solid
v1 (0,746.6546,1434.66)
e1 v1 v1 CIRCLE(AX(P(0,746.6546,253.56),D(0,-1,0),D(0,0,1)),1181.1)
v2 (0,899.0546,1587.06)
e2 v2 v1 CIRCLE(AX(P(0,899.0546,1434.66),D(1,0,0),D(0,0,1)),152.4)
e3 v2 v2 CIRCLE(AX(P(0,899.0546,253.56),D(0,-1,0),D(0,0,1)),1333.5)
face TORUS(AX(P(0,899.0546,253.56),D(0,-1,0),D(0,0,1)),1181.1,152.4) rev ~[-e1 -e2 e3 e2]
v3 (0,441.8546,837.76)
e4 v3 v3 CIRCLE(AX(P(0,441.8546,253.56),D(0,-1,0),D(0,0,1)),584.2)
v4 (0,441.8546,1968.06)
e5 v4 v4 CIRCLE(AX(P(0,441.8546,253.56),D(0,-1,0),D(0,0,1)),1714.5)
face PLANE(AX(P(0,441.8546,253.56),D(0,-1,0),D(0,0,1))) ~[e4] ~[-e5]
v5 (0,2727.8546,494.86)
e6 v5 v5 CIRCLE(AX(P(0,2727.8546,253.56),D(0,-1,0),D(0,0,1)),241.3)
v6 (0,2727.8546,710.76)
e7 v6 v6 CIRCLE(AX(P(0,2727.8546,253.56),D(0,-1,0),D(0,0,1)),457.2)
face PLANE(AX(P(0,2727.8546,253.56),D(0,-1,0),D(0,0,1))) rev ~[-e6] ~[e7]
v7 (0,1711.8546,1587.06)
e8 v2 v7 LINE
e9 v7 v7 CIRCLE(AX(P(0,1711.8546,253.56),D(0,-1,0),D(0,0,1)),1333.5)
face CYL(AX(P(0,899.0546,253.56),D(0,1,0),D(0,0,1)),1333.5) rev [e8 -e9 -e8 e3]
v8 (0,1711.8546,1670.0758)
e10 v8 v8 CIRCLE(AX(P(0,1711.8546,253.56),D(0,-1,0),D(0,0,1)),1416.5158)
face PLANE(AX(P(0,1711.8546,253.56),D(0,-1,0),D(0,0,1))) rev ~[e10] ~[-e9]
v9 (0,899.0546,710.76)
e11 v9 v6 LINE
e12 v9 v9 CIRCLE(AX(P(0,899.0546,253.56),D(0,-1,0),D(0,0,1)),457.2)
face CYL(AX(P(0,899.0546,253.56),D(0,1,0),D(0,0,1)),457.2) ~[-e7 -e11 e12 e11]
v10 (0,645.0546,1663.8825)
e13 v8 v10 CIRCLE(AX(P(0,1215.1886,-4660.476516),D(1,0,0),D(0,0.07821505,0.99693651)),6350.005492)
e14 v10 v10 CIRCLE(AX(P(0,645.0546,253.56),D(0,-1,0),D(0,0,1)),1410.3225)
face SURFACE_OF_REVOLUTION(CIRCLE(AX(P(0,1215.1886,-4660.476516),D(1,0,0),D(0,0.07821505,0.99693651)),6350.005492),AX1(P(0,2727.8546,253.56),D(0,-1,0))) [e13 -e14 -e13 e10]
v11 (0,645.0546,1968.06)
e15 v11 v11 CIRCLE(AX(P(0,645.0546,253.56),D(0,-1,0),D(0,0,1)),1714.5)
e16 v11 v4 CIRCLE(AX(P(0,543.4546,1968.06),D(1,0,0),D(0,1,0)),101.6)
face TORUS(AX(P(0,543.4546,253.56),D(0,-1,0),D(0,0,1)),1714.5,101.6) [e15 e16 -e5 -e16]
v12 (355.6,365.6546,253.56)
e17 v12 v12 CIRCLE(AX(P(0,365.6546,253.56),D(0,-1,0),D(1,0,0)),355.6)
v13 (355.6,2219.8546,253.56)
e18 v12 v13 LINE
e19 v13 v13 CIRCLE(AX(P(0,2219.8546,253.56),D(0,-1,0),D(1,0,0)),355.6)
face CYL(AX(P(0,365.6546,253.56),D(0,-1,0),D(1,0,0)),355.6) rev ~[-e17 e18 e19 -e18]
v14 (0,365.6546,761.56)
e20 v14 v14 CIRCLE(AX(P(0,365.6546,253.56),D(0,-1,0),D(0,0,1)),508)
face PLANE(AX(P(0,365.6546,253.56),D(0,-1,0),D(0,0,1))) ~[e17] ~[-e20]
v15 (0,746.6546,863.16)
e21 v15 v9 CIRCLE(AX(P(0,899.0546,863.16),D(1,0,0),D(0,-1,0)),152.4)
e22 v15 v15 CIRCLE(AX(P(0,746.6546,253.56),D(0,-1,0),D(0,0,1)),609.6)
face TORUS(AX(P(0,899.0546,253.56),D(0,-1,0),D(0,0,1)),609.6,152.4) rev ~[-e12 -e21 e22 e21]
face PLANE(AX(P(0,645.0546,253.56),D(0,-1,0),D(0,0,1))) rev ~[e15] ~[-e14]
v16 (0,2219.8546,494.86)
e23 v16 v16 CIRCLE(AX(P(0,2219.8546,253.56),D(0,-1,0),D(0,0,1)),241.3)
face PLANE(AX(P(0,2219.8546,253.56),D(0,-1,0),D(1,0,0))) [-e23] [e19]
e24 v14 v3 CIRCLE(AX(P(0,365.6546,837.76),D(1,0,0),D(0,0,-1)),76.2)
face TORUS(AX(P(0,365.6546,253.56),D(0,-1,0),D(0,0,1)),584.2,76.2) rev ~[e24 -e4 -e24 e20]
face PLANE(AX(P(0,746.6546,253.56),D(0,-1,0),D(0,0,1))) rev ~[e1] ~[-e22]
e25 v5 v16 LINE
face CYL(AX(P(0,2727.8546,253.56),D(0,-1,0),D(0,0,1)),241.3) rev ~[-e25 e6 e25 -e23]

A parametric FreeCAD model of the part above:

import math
import FreeCAD as App
import Part
import Sketcher
from FreeCAD import Vector
Q = App.Units.Quantity

doc = App.newDocument("Part")
body = doc.addObject("PartDesign::Body", "Body")

sketch1 = body.newObject("Sketcher::SketchObject", "Sketch")
sketch1.AttachmentSupport = (doc.getObject("YZ_Plane"), [""])
sketch1.MapMode = "FlatFace"
sketch1.addGeometry(Part.LineSegment(Vector(365.6546, 761.56, 0), Vector(365.6546, 253.56, 0)), False)
sketch1.addGeometry(Part.LineSegment(Vector(365.6546, 253.56, 0), Vector(2219.8546, 253.56, 0)), False)
sketch1.addGeometry(Part.LineSegment(Vector(2219.8546, 253.56, 0), Vector(2219.8546, 494.86, 0)), False)
sketch1.addGeometry(Part.LineSegment(Vector(2219.8546, 494.86, 0), Vector(2727.8546, 494.86, 0)), False)
sketch1.addGeometry(Part.LineSegment(Vector(2727.8546, 494.86, 0), Vector(2727.8546, 710.76, 0)), False)
sketch1.addGeometry(Part.LineSegment(Vector(2727.8546, 710.76, 0), Vector(899.0546, 710.76, 0)), False)
sketch1.addGeometry(Part.ArcOfCircle(Part.Circle(Vector(899.0546, 863.16, 0), Vector(0, 0, 1), 152.4), math.radians(180), math.radians(270)), False)
sketch1.addGeometry(Part.LineSegment(Vector(746.6546, 863.16, 0), Vector(746.6546, 1434.66, 0)), False)
sketch1.addGeometry(Part.ArcOfCircle(Part.Circle(Vector(899.0546, 1434.66, 0), Vector(0, 0, 1), 152.4), math.radians(90), math.radians(180)), False)
sketch1.addGeometry(Part.LineSegment(Vector(899.0546, 1587.06, 0), Vector(1711.8546, 1587.06, 0)), False)
sketch1.addGeometry(Part.LineSegment(Vector(1711.8546, 1587.06, 0), Vector(1711.8546, 1670.0758, 0)), False)
sketch1.addGeometry(Part.ArcOfCircle(Part.Circle(Vector(1215.1886, -4660.476516, 0), Vector(0, 0, 1), 6350.005492), math.radians(85.514026), math.radians(95.151227)), False)
sketch1.addGeometry(Part.LineSegment(Vector(645.0546, 1663.8825, 0), Vector(645.0546, 1968.06, 0)), False)
sketch1.addGeometry(Part.ArcOfCircle(Part.Circle(Vector(543.4546, 1968.06, 0), Vector(0, 0, 1), 101.6), math.radians(0), math.radians(180)), False)
sketch1.addGeometry(Part.LineSegment(Vector(441.8546, 1968.06, 0), Vector(441.8546, 837.76, 0)), False)
sketch1.addGeometry(Part.ArcOfCircle(Part.Circle(Vector(365.6546, 837.76, 0), Vector(0, 0, 1), 76.2), math.radians(-90), math.radians(0)), False)
sketch1.addGeometry(Part.LineSegment(Vector(2727.8546, 253.56, 0), Vector(365.6546, 253.56, 0)), True)
sketch1.addConstraint(Sketcher.Constraint("Coincident", 0, 2, 1, 1))
sketch1.addConstraint(Sketcher.Constraint("Coincident", 1, 2, 2, 1))
sketch1.addConstraint(Sketcher.Constraint("Coincident", 2, 2, 3, 1))
sketch1.addConstraint(Sketcher.Constraint("Coincident", 3, 2, 4, 1))
sketch1.addConstraint(Sketcher.Constraint("Coincident", 4, 2, 5, 1))
sketch1.addConstraint(Sketcher.Constraint("Coincident", 5, 2, 6, 2))
sketch1.addConstraint(Sketcher.Constraint("Coincident", 6, 1, 7, 1))
sketch1.addConstraint(Sketcher.Constraint("Coincident", 7, 2, 8, 2))
sketch1.addConstraint(Sketcher.Constraint("Coincident", 8, 1, 9, 1))
sketch1.addConstraint(Sketcher.Constraint("Coincident", 9, 2, 10, 1))
sketch1.addConstraint(Sketcher.Constraint("Coincident", 10, 2, 11, 1))
sketch1.addConstraint(Sketcher.Constraint("Coincident", 11, 2, 12, 1))
sketch1.addConstraint(Sketcher.Constraint("Coincident", 12, 2, 13, 1))
sketch1.addConstraint(Sketcher.Constraint("Coincident", 13, 2, 14, 1))
sketch1.addConstraint(Sketcher.Constraint("Coincident", 14, 2, 15, 2))
sketch1.addConstraint(Sketcher.Constraint("Coincident", 15, 1, 0, 1))
sketch1.addConstraint(Sketcher.Constraint("Vertical", 0))
sketch1.addConstraint(Sketcher.Constraint("Horizontal", 1))
sketch1.addConstraint(Sketcher.Constraint("Vertical", 2))
sketch1.addConstraint(Sketcher.Constraint("Horizontal", 3))
sketch1.addConstraint(Sketcher.Constraint("Vertical", 4))
sketch1.addConstraint(Sketcher.Constraint("Horizontal", 5))
sketch1.addConstraint(Sketcher.Constraint("Vertical", 7))
sketch1.addConstraint(Sketcher.Constraint("Horizontal", 9))
sketch1.addConstraint(Sketcher.Constraint("Vertical", 10))
sketch1.addConstraint(Sketcher.Constraint("Vertical", 12))
sketch1.addConstraint(Sketcher.Constraint("Vertical", 14))
sketch1.addConstraint(Sketcher.Constraint("Horizontal", 16))
sketch1.addConstraint(Sketcher.Constraint("Coincident", 16, 2, 0, 2))
sketch1.addConstraint(Sketcher.Constraint("Radius", 6, Q("6 in")))
sketch1.addConstraint(Sketcher.Constraint("Radius", 8, Q("6 in")))
sketch1.addConstraint(Sketcher.Constraint("Radius", 13, Q("4 in")))
sketch1.addConstraint(Sketcher.Constraint("Radius", 15, Q("3 in")))
sketch1.addConstraint(Sketcher.Constraint("DistanceX", 1, 1, 1, 2, Q("73 in")))
sketch1.addConstraint(Sketcher.Constraint("DistanceX", 16, 2, 16, 1, Q("93 in")))
sketch1.addConstraint(Sketcher.Constraint("DistanceX", 15, 3, 1, 2, Q("73 in")))
sketch1.addConstraint(Sketcher.Constraint("DistanceX", 0, 2, 3, 2, Q("93 in")))
sketch1.addConstraint(Sketcher.Constraint("DistanceX", 6, 1, 5, 2, Q("6 in")))
sketch1.addConstraint(Sketcher.Constraint("DistanceY", 5, 2, 6, 1, Q("6 in")))
sketch1.addConstraint(Sketcher.Constraint("DistanceX", 13, 3, 7, 2, Q("8 in")))
sketch1.addConstraint(Sketcher.Constraint("DistanceX", 7, 2, 8, 1, Q("6 in")))
sketch1.addConstraint(Sketcher.Constraint("DistanceY", 7, 2, 8, 1, Q("6 in")))
sketch1.addConstraint(Sketcher.Constraint("DistanceY", 15, 1, 14, 2, Q("3 in")))
sketch1.addConstraint(Sketcher.Constraint("DistanceX", 9, 2, 16, 1, Q("40 in")))
sketch1.addConstraint(Sketcher.Constraint("DistanceY", 0, 2, 0, 1, Q("20 in")))
sketch1.addConstraint(Sketcher.Constraint("DistanceY", 2, 1, 2, 2, Q("9.5 in")))
sketch1.addConstraint(Sketcher.Constraint("DistanceY", 4, 1, 4, 2, Q("8.5 in")))
sketch1.addConstraint(Sketcher.Constraint("DistanceY", 7, 1, 7, 2, Q("22.5 in")))
sketch1.addConstraint(Sketcher.Constraint("DistanceY", 14, 2, 14, 1, Q("44.5 in")))
sketch1.addConstraint(Sketcher.Constraint("DistanceY", 8, 3, 13, 3, Q("21 in")))
sketch1.addConstraint(Sketcher.Constraint("DistanceY", 8, 1, 12, 2, Q("15 in")))
sketch1.addConstraint(Sketcher.Constraint("DistanceX", -1, 1, 15, 3, Q("365.6546 mm")))
sketch1.addConstraint(Sketcher.Constraint("DistanceY", -1, 1, 0, 2, Q("253.56 mm")))
sketch1.addConstraint(Sketcher.Constraint("Radius", 11, Q("6350.0055 mm")))
sketch1.addConstraint(Sketcher.Constraint("DistanceY", 12, 1, 12, 2, Q("11.9755 in")))
sketch1.addConstraint(Sketcher.Constraint("DistanceY", 11, 3, 6, 3, Q("217.466 in")))
revolution = body.newObject("PartDesign::Revolution", "Revolution")
revolution.Profile = sketch1
revolution.ReferenceAxis = (sketch1, ["Axis0"])
revolution.Angle = 360

sketch2 = body.newObject("Sketcher::SketchObject", "Sketch001")
sketch2.AttachmentSupport = (doc.getObject("XZ_Plane"), [""])
sketch2.MapMode = "FlatFace"
sketch2.AttachmentOffset = App.Placement(Vector(0, 0, -365.6546), App.Rotation())
sketch2.addGeometry(Part.Circle(Vector(0, 254, 0), Vector(0, 0, 1), 356), False)
sketch2.addConstraint(Sketcher.Constraint("PointOnObject", 0, 3, -2))
sketch2.addConstraint(Sketcher.Constraint("Diameter", 0, Q("28 in")))
sketch2.addConstraint(Sketcher.Constraint("DistanceY", -1, 1, 0, 3, Q("253.56 mm")))
pocket1 = body.newObject("PartDesign::Pocket", "Pocket")
pocket1.Profile = sketch2
pocket1.Length = Q("73 in")

doc.recompute()
